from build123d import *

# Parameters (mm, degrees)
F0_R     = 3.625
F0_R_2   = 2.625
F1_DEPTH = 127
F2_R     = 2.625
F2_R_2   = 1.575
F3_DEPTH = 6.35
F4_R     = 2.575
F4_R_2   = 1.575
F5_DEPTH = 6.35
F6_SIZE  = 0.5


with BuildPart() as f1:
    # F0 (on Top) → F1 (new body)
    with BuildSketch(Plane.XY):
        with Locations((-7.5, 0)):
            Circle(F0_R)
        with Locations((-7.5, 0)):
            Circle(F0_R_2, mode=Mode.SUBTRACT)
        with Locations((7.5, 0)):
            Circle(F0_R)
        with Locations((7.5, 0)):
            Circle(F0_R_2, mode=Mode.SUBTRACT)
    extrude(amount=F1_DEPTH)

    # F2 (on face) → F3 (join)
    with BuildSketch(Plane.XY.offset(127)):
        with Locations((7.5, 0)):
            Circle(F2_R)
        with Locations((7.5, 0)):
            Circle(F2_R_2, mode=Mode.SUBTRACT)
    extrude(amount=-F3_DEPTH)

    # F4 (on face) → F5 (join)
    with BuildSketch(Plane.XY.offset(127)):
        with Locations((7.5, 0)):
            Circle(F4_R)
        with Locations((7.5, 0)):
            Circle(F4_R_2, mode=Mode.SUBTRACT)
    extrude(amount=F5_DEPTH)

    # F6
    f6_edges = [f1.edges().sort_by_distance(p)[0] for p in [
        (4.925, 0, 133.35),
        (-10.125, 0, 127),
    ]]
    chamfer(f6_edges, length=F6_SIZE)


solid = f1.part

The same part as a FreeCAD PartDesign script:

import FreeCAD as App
import Part
import Sketcher

V = App.Vector
Q = App.Units.Quantity


def edges_at(feature, points):
    """Names of the edges that pass closest to the given points."""
    edges = feature.Shape.Edges
    near = lambda p: min(range(len(edges)), key=lambda i: edges[i].distToShape(Part.Vertex(*p))[0])
    return sorted({f"Edge{near(p) + 1}" for p in points})

doc = App.newDocument("Part")
body = doc.addObject("PartDesign::Body", "Body")
body.AllowCompound = True

# Sketch on XY plane
sketch1 = body.newObject("Sketcher::SketchObject", "Sketch")
sketch1.AttachmentSupport = (doc.getObject("XY_Plane"), [""])
sketch1.MapMode = "FlatFace"
sketch1.addGeometry([
    Part.Circle(V(-7.5, 0, 0), V(0, 0, 1), 3.6),
    Part.Circle(V(-7.5, 0, 0), V(0, 0, 1), 2.6),
    Part.Circle(V(7.5, 0, 0), V(0, 0, 1), 3.6),
    Part.Circle(V(7.5, 0, 0), V(0, 0, 1), 2.6),
], False)
sketch1.addConstraint([
    Sketcher.Constraint("Coincident", 1, 3, 0, 3),
    Sketcher.Constraint("Coincident", 3, 3, 2, 3),
    Sketcher.Constraint("Equal", 0, 2),
    Sketcher.Constraint("Equal", 1, 3),
    Sketcher.Constraint("Symmetric", 0, 3, 2, 3, -1, 1),
    Sketcher.Constraint("PointOnObject", 0, 3, -1),
    Sketcher.Constraint("Diameter", 0, Q("7.25 mm")),
    Sketcher.Constraint("Diameter", 1, Q("5.25 mm")),
    Sketcher.Constraint("DistanceX", 0, 3, -1, 1, Q("7.5 mm")),
])
pad1 = body.newObject("PartDesign::Pad", "Pad")
pad1.Profile = sketch1
pad1.Length = Q("5 in")

# Sketch on XY plane
sketch2 = body.newObject("Sketcher::SketchObject", "Sketch001")
sketch2.AttachmentSupport = (doc.getObject("XY_Plane"), [""])
sketch2.MapMode = "FlatFace"
sketch2.AttachmentOffset = App.Placement(V(0, 0, 5 * 25.4), App.Rotation())
sketch2.addGeometry([
    Part.Circle(V(7.5, 0, 0), V(0, 0, 1), 2.6),
    Part.Circle(V(7.5, 0, 0), V(0, 0, 1), 1.6),
], False)
sketch2.addConstraint([
    Sketcher.Constraint("Coincident", 1, 3, 0, 3),
    Sketcher.Constraint("PointOnObject", 0, 3, -1),
    Sketcher.Constraint("Diameter", 0, Q("5.25 mm")),
    Sketcher.Constraint("Diameter", 1, Q("3.15 mm")),
    Sketcher.Constraint("DistanceX", -1, 1, 0, 3, Q("7.5 mm")),
])
pad2 = body.newObject("PartDesign::Pad", "Pad001")
pad2.Profile = sketch2
pad2.Length = Q("0.25 in")
pad2.Reversed = True

# Sketch on XY plane
sketch3 = body.newObject("Sketcher::SketchObject", "Sketch002")
sketch3.AttachmentSupport = (doc.getObject("XY_Plane"), [""])
sketch3.MapMode = "FlatFace"
sketch3.AttachmentOffset = App.Placement(V(0, 0, 5 * 25.4), App.Rotation())
sketch3.addGeometry([
    Part.Circle(V(7.5, 0, 0), V(0, 0, 1), 2.6),
    Part.Circle(V(7.5, 0, 0), V(0, 0, 1), 1.6),
], False)
sketch3.addConstraint([
    Sketcher.Constraint("Coincident", 1, 3, 0, 3),
    Sketcher.Constraint("PointOnObject", 0, 3, -1),
    Sketcher.Constraint("Diameter", 0, Q("5.15 mm")),
    Sketcher.Constraint("Diameter", 1, Q("3.15 mm")),
    Sketcher.Constraint("DistanceX", -1, 1, 0, 3, Q("7.5 mm")),
])
pad3 = body.newObject("PartDesign::Pad", "Pad002")
pad3.Profile = sketch3
pad3.Length = Q("0.25 in")
doc.recompute()

chamfer = body.newObject("PartDesign::Chamfer", "Chamfer")
chamfer.Base = (pad3, edges_at(pad3, [(4.925, 0, 133.35), (-10.125, 0, 127)]))
chamfer.Size = 0.5

doc.recompute()
